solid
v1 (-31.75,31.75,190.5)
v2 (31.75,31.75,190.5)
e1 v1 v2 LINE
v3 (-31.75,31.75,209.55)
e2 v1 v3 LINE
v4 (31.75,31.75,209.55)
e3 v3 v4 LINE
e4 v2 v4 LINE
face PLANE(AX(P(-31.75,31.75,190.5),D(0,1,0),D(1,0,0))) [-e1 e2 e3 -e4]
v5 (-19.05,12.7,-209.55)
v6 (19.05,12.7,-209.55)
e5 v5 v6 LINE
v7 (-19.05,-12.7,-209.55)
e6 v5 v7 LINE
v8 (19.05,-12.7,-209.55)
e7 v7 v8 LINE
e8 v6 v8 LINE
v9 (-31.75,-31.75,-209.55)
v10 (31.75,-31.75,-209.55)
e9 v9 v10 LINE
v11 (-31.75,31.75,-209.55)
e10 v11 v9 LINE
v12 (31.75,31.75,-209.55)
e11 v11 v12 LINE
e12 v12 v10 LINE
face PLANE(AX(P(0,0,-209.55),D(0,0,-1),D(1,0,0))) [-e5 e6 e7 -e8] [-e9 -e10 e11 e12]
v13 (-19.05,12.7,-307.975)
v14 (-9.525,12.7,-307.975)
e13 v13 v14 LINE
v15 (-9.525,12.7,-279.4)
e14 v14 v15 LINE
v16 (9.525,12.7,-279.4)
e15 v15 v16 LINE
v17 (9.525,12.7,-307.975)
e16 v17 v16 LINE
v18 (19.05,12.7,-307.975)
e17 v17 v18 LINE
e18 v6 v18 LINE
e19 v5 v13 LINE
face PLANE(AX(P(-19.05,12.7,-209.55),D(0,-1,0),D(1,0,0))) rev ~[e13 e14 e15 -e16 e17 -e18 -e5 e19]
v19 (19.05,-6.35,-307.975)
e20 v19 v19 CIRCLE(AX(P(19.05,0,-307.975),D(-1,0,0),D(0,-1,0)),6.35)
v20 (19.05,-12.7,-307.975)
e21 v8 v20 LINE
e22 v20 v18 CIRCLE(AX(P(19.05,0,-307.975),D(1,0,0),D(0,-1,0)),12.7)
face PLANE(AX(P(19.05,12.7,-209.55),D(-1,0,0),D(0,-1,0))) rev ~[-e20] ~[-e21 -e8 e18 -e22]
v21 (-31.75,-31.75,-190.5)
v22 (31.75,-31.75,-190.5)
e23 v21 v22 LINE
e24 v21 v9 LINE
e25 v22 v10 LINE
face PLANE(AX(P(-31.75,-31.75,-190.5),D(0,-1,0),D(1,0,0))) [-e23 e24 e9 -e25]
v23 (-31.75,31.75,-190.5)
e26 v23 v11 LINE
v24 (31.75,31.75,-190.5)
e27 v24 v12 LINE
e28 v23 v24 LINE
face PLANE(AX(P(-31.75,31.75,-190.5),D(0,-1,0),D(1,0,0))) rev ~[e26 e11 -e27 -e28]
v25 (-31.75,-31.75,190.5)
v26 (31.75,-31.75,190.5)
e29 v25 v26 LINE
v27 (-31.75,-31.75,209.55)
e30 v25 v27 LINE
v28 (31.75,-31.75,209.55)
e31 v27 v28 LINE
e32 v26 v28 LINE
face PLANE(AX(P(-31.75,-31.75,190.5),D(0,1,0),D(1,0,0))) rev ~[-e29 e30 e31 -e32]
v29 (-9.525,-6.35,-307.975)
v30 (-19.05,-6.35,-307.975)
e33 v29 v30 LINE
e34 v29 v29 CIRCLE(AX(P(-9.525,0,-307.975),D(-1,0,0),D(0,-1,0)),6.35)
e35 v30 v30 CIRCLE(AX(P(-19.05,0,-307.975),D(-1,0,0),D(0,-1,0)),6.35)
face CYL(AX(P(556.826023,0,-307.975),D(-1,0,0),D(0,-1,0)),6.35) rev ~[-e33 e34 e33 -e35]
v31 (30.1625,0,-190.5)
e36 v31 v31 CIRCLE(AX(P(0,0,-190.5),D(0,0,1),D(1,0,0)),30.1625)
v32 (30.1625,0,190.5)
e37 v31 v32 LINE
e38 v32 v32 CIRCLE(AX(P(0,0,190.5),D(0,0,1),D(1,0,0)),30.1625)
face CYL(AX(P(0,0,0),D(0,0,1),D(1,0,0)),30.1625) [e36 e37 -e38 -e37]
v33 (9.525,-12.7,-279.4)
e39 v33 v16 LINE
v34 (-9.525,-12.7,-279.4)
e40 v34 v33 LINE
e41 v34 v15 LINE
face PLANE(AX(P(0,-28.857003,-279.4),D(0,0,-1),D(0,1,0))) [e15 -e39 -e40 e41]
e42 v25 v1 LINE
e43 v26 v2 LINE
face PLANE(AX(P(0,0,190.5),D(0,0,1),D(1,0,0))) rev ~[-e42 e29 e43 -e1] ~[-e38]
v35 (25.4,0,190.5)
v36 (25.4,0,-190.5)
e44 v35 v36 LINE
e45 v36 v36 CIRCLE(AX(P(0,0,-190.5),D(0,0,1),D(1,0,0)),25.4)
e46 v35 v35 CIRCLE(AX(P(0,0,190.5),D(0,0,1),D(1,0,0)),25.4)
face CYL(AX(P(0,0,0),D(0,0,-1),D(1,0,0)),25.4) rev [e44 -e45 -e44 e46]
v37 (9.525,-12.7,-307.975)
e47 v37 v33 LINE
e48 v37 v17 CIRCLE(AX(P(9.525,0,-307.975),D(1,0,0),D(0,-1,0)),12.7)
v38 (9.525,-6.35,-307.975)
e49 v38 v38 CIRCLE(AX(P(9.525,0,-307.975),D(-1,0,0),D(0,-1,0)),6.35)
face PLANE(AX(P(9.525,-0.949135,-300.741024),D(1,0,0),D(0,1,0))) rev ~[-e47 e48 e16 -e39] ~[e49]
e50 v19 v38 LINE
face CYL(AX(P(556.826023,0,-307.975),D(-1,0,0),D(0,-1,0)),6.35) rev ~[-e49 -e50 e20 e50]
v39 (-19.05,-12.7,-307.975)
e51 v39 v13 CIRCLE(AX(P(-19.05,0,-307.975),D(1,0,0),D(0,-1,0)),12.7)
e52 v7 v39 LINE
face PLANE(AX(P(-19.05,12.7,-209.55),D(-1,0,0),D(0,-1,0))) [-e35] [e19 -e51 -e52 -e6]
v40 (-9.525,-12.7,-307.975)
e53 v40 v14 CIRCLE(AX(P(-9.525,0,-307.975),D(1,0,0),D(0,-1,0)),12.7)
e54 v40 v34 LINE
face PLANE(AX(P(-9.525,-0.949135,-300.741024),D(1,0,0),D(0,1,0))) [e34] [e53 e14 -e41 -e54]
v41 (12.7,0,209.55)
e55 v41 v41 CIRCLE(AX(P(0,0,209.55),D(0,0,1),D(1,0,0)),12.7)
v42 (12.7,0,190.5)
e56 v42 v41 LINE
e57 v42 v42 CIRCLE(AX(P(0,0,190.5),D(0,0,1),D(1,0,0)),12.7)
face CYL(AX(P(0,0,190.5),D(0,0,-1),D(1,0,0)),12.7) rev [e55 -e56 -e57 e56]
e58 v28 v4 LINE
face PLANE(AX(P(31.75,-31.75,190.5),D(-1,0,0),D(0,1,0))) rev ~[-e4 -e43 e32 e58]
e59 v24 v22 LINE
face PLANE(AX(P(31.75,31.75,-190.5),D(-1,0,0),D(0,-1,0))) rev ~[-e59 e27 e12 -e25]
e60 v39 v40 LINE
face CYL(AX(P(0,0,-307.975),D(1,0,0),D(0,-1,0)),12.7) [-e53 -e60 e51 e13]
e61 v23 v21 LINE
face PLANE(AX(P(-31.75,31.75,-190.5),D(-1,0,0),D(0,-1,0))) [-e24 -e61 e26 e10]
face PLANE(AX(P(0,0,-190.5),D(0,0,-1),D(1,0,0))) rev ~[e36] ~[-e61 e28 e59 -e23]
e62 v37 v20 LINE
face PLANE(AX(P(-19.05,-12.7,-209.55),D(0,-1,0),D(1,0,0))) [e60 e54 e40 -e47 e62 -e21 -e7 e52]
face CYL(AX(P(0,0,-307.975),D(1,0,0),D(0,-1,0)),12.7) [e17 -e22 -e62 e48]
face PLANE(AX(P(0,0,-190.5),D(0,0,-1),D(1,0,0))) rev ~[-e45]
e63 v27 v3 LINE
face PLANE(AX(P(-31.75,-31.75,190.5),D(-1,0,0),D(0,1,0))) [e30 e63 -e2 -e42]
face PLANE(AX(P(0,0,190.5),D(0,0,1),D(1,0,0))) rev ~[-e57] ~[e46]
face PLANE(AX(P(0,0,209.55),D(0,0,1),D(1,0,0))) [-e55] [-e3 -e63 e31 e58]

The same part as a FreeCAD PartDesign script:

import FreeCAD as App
import Part
import Sketcher
from FreeCAD import Vector
Q = App.Units.Quantity


def add_polygon(sketch, points):
    """Adds a closed chain of lines whose ends are joined by coincident constraints."""
    first, n = sketch.GeometryCount, len(points)
    for a, b in zip(points, points[1:] + points[:1]):
        sketch.addGeometry(Part.LineSegment(App.Vector(*a, 0), App.Vector(*b, 0)), False)
    for i in range(n):
        sketch.addConstraint(Sketcher.Constraint("Coincident", first + i, 2, first + (i + 1) % n, 1))

doc = App.newDocument("Part")
body = doc.addObject("PartDesign::Body", "Body")

sketch1 = body.newObject("Sketcher::SketchObject", "Sketch")
sketch1.AttachmentSupport = (doc.getObject("XY_Plane"), [""])
sketch1.MapMode = "FlatFace"
sketch1.addGeometry([
    Part.Circle(Vector(0, 0, 0), Vector(0, 0, 1), 30),
    Part.Circle(Vector(0, 0, 0), Vector(0, 0, 1), 25),
], False)
sketch1.addConstraint([
    Sketcher.Constraint("Coincident", 0, 3, -1, 1),
    Sketcher.Constraint("Coincident", 1, 3, -1, 1),
    Sketcher.Constraint("Diameter", 1, Q("2 in")),
    Sketcher.Constraint("Diameter", 0, Q("2.375 in")),
])
pad1 = body.newObject("PartDesign::Pad", "Pad")
pad1.Profile = sketch1
pad1.Length = Q("15 in")
pad1.Midplane = True

sketch2 = body.newObject("Sketcher::SketchObject", "Sketch001")
sketch2.AttachmentSupport = (doc.getObject("XY_Plane"), [""])
sketch2.MapMode = "FlatFace"
sketch2.AttachmentOffset = App.Placement(Vector(0, 0, 7.5 * 25.4), App.Rotation())
add_polygon(sketch2, [(-32, 32), (-32, -32), (32, -32), (32, 32)])
sketch2.addGeometry(Part.Circle(Vector(0, 0, 0), Vector(0, 0, 1), 13), False)
sketch2.addConstraint([
    Sketcher.Constraint("Vertical", 0),
    Sketcher.Constraint("Horizontal", 1),
    Sketcher.Constraint("Vertical", 2),
    Sketcher.Constraint("Horizontal", 3),
    Sketcher.Constraint("Coincident", 4, 3, -1, 1),
    Sketcher.Constraint("Symmetric", 0, 2, 2, 2, -1, 1),
    Sketcher.Constraint("Equal", 3, 0),
    Sketcher.Constraint("Diameter", 4, Q("1 in")),
    Sketcher.Constraint("DistanceX", 1, 1, 1, 2, Q("2.5 in")),
])
pad2 = body.newObject("PartDesign::Pad", "Pad001")
pad2.Profile = sketch2
pad2.Length = Q("0.75 in")

sketch3 = body.newObject("Sketcher::SketchObject", "Sketch002")
sketch3.AttachmentSupport = (doc.getObject("XY_Plane"), [""])
sketch3.MapMode = "FlatFace"
sketch3.AttachmentOffset = App.Placement(Vector(0, 0, -7.5 * 25.4), App.Rotation())
add_polygon(sketch3, [(-32, -32), (-32, 32), (32, 32), (32, -32)])
sketch3.addConstraint([
    Sketcher.Constraint("Vertical", 0),
    Sketcher.Constraint("Horizontal", 1),
    Sketcher.Constraint("Vertical", 2),
    Sketcher.Constraint("Horizontal", 3),
    Sketcher.Constraint("Symmetric", 0, 2, 2, 2, -1, 1),
    Sketcher.Constraint("Equal", 3, 0),
    Sketcher.Constraint("DistanceX", 1, 1, 1, 2, Q("2.5 in")),
])
pad3 = body.newObject("PartDesign::Pad", "Pad002")
pad3.Profile = sketch3
pad3.Length = Q("0.75 in")
pad3.Reversed = True

sketch4 = body.newObject("Sketcher::SketchObject", "Sketch003")
sketch4.AttachmentSupport = (doc.getObject("XY_Plane"), [""])
sketch4.MapMode = "FlatFace"
sketch4.AttachmentOffset = App.Placement(Vector(0, 0, -8.25 * 25.4), App.Rotation())
add_polygon(sketch4, [(-19, -13), (-19, 13), (19, 13), (19, -13)])
sketch4.addConstraint([
    Sketcher.Constraint("Vertical", 0),
    Sketcher.Constraint("Horizontal", 1),
    Sketcher.Constraint("Vertical", 2),
    Sketcher.Constraint("Horizontal", 3),
    Sketcher.Constraint("Symmetric", 0, 2, 2, 2, -1, 1),
    Sketcher.Constraint("DistanceY", 0, 1, 0, 2, Q("1 in")),
    Sketcher.Constraint("DistanceX", 1, 1, 1, 2, Q("1.5 in")),
])
pad4 = body.newObject("PartDesign::Pad", "Pad003")
pad4.Profile = sketch4
pad4.Length = Q("3.875 in")
pad4.Reversed = True

sketch5 = body.newObject("Sketcher::SketchObject", "Sketch004")
sketch5.AttachmentSupport = (doc.getObject("XY_Plane"), [""])
sketch5.MapMode = "FlatFace"
sketch5.AttachmentOffset = App.Placement(Vector(0, 0, -12.125 * 25.4), App.Rotation())
add_polygon(sketch5, [(-19, -13), (-19, 0), (19, 0), (19, -13)])
sketch5.addConstraint([
    Sketcher.Constraint("Vertical", 0),
    Sketcher.Constraint("Horizontal", 1),
    Sketcher.Constraint("Vertical", 2),
    Sketcher.Constraint("Horizontal", 3),
    Sketcher.Constraint("Symmetric", 0, 2, 1, 2, -1, 1),
    Sketcher.Constraint("DistanceX", 1, 1, 1, 2, Q("1.5 in")),
    Sketcher.Constraint("DistanceY", 0, 1, 0, 2, Q("0.5 in")),
])
revolution = body.newObject("PartDesign::Revolution", "Revolution")
revolution.Profile = sketch5
revolution.ReferenceAxis = (sketch5, ["H_Axis"])
revolution.Angle = 360

sketch6 = body.newObject("Sketcher::SketchObject", "Sketch005")
sketch6.AttachmentSupport = (doc.getObject("YZ_Plane"), [""])
sketch6.MapMode = "FlatFace"
sketch6.AttachmentOffset = App.Placement(Vector(0, 0, 0.75 * 25.4), App.Rotation())
sketch6.addGeometry(Part.Circle(Vector(0, -308, 0), Vector(0, 0, 1), 6), False)
sketch6.addConstraint([
    Sketcher.Constraint("PointOnObject", 0, 3, -2),
    Sketcher.Constraint("Diameter", 0, Q("0.5 in")),
    Sketcher.Constraint("DistanceY", 0, 3, -1, 1, Q("12.125 in")),
])
doc.recompute()
hole = body.newObject("PartDesign::Hole", "Hole")
hole.Profile = sketch6
hole.ThreadType = "None"
hole.Diameter = Q("0.5 in")
hole.DepthType = "ThroughAll"

sketch7 = body.newObject("Sketcher::SketchObject", "Sketch006")
sketch7.AttachmentSupport = (doc.getObject("YZ_Plane"), [""])
sketch7.MapMode = "FlatFace"
add_polygon(sketch7, [(-29, -279), (-29, -322), (27, -322), (27, -279)])
sketch7.addConstraint([
    Sketcher.Constraint("Vertical", 0),
    Sketcher.Constraint("Horizontal", 1),
    Sketcher.Constraint("Vertical", 2),
    Sketcher.Constraint("Horizontal", 3),
    Sketcher.Constraint("DistanceY", 2, 2, -1, 1, Q("11 in")),
    Sketcher.Constraint("DistanceY", 0, 2, 0, 1, 42.682048),
    Sketcher.Constraint("DistanceX", 1, 1, 1, 2, 55.815736),
    Sketcher.Constraint("DistanceX", 0, 2, -1, 1, 28.857003),
])
pocket1 = body.newObject("PartDesign::Pocket", "Pocket")
pocket1.Profile = sketch7
pocket1.Length = Q("0.75 in")
pocket1.Midplane = True

doc.recompute()
